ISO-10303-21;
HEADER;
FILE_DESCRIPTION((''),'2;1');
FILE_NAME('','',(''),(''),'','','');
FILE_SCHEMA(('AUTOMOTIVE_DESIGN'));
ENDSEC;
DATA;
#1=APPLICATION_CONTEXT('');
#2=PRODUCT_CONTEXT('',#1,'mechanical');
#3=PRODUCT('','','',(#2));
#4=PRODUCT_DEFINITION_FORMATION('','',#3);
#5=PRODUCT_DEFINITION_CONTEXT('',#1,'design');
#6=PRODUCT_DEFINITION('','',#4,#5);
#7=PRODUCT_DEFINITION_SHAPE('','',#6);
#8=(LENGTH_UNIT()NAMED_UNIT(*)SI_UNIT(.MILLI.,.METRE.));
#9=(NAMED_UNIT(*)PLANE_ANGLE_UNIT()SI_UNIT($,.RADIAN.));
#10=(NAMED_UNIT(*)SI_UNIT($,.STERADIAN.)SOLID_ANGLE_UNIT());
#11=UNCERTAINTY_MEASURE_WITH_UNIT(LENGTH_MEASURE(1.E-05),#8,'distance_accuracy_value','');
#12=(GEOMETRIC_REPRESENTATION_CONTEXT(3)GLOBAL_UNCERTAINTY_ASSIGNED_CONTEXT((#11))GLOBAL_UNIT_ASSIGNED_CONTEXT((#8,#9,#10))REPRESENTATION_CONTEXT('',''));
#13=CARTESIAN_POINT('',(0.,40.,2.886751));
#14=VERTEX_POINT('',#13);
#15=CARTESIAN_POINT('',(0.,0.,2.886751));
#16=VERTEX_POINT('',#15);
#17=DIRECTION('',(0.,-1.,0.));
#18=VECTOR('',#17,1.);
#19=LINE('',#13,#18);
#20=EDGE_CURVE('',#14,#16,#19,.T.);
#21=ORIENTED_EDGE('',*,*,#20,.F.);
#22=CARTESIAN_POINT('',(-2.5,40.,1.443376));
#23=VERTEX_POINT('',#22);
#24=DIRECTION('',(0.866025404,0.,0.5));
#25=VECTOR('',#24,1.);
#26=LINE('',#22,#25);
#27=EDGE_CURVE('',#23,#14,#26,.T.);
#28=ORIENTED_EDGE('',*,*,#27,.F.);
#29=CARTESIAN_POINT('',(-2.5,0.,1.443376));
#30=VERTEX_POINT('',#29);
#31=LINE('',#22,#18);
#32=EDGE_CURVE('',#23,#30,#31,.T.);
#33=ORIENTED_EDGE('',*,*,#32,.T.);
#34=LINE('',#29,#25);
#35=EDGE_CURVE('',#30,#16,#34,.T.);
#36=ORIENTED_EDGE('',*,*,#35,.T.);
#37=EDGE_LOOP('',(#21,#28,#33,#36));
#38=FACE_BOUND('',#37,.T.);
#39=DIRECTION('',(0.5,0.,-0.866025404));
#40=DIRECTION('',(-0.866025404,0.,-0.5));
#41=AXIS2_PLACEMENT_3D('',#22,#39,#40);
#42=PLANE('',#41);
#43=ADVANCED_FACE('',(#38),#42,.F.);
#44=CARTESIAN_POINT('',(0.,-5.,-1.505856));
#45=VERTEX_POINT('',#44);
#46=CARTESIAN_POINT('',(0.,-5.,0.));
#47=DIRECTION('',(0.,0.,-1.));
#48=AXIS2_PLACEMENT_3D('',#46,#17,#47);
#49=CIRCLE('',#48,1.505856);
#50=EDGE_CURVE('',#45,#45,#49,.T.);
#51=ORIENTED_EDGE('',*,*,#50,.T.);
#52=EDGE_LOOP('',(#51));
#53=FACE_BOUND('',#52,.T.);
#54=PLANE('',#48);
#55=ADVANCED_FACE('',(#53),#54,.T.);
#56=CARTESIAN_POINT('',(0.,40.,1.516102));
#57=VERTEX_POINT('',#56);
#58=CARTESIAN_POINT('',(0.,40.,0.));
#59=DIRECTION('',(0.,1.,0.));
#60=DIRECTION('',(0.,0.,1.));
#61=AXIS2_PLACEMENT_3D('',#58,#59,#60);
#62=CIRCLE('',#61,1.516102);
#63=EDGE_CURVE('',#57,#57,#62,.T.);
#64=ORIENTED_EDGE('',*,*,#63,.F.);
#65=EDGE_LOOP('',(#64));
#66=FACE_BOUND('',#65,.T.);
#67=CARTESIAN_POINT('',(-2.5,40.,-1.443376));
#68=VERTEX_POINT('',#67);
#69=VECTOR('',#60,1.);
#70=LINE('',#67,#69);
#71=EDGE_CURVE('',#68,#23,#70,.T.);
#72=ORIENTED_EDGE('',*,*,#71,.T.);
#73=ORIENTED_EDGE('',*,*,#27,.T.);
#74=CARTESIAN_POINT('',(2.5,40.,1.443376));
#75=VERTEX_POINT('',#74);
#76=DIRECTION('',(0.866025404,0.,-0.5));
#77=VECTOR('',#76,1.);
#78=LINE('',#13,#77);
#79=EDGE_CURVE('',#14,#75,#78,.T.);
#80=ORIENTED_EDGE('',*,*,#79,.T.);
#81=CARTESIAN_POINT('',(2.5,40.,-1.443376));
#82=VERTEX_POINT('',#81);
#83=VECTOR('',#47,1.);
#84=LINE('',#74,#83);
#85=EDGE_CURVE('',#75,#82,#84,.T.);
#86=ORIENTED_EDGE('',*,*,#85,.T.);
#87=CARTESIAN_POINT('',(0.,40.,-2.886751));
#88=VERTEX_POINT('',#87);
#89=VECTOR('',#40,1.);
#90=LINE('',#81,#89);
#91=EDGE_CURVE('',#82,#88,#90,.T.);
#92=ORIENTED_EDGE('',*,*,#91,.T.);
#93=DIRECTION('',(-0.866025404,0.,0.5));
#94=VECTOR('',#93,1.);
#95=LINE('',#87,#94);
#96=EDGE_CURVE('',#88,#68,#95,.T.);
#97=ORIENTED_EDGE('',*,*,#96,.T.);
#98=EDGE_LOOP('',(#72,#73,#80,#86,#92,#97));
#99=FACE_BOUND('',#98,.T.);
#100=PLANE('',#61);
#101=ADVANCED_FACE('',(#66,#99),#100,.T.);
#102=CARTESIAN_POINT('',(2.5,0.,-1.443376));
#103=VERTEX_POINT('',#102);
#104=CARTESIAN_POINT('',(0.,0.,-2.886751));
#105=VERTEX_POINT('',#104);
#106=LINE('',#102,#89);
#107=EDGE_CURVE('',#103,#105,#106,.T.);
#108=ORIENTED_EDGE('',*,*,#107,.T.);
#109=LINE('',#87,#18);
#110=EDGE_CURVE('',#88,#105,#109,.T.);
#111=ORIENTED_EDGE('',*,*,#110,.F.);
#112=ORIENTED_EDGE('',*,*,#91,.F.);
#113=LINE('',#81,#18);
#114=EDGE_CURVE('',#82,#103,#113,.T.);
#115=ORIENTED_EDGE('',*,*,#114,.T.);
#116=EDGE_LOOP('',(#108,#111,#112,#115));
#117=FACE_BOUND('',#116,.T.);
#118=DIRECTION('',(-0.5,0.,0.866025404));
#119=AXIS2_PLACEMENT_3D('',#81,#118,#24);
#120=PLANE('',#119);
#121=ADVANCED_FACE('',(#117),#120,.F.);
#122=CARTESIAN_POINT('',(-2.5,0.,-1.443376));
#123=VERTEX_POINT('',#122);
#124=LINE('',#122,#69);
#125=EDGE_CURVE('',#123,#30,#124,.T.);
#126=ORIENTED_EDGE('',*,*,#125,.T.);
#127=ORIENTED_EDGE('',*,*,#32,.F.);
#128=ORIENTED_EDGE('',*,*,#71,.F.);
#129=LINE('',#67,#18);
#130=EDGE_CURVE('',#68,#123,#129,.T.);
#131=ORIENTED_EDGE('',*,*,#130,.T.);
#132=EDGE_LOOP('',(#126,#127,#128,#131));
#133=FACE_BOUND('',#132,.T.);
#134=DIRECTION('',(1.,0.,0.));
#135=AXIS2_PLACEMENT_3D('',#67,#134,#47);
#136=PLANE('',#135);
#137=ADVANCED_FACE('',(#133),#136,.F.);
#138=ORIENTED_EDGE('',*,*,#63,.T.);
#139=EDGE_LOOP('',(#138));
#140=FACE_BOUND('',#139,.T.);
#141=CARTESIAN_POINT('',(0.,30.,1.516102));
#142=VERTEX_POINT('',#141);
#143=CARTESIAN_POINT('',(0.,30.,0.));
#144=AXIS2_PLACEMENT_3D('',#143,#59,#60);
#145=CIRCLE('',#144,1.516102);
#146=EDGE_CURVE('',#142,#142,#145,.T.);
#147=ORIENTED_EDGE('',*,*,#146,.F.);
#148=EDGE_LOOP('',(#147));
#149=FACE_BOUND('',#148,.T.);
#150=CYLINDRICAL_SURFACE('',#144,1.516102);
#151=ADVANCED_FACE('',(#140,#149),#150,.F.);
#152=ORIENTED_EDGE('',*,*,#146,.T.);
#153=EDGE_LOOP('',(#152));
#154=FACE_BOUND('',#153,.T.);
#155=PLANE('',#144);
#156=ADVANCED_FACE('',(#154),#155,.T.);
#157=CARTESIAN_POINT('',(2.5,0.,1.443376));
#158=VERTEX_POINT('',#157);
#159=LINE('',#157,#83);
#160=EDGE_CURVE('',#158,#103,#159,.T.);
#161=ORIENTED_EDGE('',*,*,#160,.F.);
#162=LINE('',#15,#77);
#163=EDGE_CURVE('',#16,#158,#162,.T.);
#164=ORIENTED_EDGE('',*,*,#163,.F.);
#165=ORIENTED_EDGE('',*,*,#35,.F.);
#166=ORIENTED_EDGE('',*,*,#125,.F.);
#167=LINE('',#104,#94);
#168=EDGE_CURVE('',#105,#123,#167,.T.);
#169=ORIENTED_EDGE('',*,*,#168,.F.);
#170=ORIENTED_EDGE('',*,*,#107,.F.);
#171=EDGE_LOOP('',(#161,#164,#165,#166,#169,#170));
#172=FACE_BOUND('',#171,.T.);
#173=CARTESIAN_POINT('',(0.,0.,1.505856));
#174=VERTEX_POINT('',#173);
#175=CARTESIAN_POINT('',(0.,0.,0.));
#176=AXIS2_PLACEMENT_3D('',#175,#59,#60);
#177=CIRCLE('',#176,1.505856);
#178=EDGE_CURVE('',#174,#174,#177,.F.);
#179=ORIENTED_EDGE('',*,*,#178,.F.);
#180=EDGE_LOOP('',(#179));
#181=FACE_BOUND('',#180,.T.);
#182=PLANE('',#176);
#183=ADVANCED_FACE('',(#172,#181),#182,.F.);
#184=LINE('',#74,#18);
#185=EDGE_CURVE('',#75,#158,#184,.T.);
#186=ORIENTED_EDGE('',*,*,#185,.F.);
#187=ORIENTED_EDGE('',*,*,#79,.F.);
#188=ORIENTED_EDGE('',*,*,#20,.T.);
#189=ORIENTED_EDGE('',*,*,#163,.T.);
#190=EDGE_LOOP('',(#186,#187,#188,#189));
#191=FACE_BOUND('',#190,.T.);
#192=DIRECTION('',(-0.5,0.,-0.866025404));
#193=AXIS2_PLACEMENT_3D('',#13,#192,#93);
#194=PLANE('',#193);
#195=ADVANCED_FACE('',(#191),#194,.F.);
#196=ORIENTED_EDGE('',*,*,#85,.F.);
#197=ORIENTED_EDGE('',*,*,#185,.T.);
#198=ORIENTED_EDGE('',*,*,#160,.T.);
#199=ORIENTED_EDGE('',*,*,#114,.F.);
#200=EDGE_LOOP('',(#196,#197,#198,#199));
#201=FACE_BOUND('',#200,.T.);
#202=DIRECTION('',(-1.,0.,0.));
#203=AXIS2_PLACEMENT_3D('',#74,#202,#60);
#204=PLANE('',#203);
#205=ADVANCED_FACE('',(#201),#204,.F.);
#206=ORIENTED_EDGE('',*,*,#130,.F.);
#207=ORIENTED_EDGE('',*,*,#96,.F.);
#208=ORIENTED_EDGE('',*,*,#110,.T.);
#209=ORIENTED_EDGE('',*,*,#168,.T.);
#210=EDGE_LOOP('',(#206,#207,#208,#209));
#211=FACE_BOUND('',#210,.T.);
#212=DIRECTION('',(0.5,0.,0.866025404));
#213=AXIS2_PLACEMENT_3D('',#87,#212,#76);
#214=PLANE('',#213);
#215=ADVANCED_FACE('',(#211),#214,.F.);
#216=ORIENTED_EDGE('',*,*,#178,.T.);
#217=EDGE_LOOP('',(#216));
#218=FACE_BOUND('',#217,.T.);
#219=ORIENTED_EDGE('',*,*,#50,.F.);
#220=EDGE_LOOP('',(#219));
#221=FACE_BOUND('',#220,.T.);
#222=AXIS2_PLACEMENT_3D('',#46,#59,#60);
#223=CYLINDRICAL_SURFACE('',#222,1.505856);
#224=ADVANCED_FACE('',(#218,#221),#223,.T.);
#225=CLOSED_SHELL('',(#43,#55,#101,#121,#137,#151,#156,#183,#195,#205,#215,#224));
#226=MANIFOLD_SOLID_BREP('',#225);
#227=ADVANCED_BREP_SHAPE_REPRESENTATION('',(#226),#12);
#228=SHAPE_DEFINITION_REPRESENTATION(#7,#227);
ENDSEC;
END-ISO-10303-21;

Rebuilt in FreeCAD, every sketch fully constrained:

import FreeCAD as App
import Part
import Sketcher
Q = App.Units.Quantity


def add_polygon(sketch, points):
    """Adds a closed chain of lines whose ends are joined by coincident constraints."""
    first, n = sketch.GeometryCount, len(points)
    for a, b in zip(points, points[1:] + points[:1]):
        sketch.addGeometry(Part.LineSegment(App.Vector(*a, 0), App.Vector(*b, 0)), False)
    for i in range(n):
        sketch.addConstraint(Sketcher.Constraint("Coincident", first + i, 2, first + (i + 1) % n, 1))

doc = App.newDocument("Part")
params = doc.addObject("Spreadsheet::Sheet", "Params")
for row, (alias, value) in enumerate([
    ("pad1_length", "40 mm"),
    ("pocket1_length", "10 mm"),
    ("pad2_length", "5 mm"),
], start=1):
    params.set(f"A{row}", alias)
    params.set(f"B{row}", "=" + value)
    params.setAlias(f"B{row}", alias)

body = doc.addObject("PartDesign::Body", "Body")

# Sketch on XZ plane
sketch1 = body.newObject("Sketcher::SketchObject", "Sketch")
sketch1.AttachmentSupport = (doc.getObject("XZ_Plane"), [""])
sketch1.MapMode = "FlatFace"
add_polygon(sketch1, [(0, 2.9), (2.5, 1.4), (2.5, -1.4), (0, -2.9), (-2.5, -1.4), (-2.5, 1.4)])  # lines 0-5
sketch1.addConstraint([
    Sketcher.Constraint("Vertical", 1),
    Sketcher.Constraint("Vertical", 4),
    Sketcher.Constraint("Symmetric", 0, 2, 3, 2, -1, 1),
    Sketcher.Constraint("Symmetric", 2, 2, 5, 2, -1, 1),
    Sketcher.Constraint("PointOnObject", 2, 2, -2),
    Sketcher.Constraint("Parallel", 2, 5),
    Sketcher.Constraint("Horizontal", 1, 2, 3, 2),
    Sketcher.Constraint("Angle", 0, Q("-30 deg")),
    Sketcher.Constraint("DistanceX", 3, 2, 1, 2, Q("5 mm")),
    Sketcher.Constraint("DistanceY", 1, 2, 1, 1, Q("2.886751 mm")),
])
pad1 = body.newObject("PartDesign::Pad", "Pad")
pad1.Profile = sketch1
pad1.setExpression("Length", "Params.pad1_length")
pad1.Reversed = True

# Sketch on XZ plane
sketch2 = body.newObject("Sketcher::SketchObject", "Sketch001")
sketch2.AttachmentSupport = (doc.getObject("XZ_Plane"), [""])
sketch2.MapMode = "FlatFace"
sketch2.AttachmentOffset = App.Placement(App.Vector(0, 0, -40), App.Rotation())
sketch2.addGeometry(Part.Circle(App.Vector(0, 0, 0), App.Vector(0, 0, 1), 1.5), False)
sketch2.addConstraint([
    Sketcher.Constraint("Coincident", 0, 3, -1, 1),
    Sketcher.Constraint("Diameter", 0, Q("3.032205 mm")),
])
pocket1 = body.newObject("PartDesign::Pocket", "Pocket")
pocket1.Profile = sketch2
pocket1.setExpression("Length", "Params.pocket1_length")
pocket1.Reversed = True

# Sketch on XZ plane
sketch3 = body.newObject("Sketcher::SketchObject", "Sketch002")
sketch3.AttachmentSupport = (doc.getObject("XZ_Plane"), [""])
sketch3.MapMode = "FlatFace"
sketch3.addGeometry(Part.Circle(App.Vector(0, 0, 0), App.Vector(0, 0, 1), 1.5), False)
sketch3.addConstraint([
    Sketcher.Constraint("Coincident", 0, 3, -1, 1),
    Sketcher.Constraint("Diameter", 0, Q("3.011712 mm")),
])
pad2 = body.newObject("PartDesign::Pad", "Pad001")
pad2.Profile = sketch3
pad2.setExpression("Length", "Params.pad2_length")

doc.recompute()
